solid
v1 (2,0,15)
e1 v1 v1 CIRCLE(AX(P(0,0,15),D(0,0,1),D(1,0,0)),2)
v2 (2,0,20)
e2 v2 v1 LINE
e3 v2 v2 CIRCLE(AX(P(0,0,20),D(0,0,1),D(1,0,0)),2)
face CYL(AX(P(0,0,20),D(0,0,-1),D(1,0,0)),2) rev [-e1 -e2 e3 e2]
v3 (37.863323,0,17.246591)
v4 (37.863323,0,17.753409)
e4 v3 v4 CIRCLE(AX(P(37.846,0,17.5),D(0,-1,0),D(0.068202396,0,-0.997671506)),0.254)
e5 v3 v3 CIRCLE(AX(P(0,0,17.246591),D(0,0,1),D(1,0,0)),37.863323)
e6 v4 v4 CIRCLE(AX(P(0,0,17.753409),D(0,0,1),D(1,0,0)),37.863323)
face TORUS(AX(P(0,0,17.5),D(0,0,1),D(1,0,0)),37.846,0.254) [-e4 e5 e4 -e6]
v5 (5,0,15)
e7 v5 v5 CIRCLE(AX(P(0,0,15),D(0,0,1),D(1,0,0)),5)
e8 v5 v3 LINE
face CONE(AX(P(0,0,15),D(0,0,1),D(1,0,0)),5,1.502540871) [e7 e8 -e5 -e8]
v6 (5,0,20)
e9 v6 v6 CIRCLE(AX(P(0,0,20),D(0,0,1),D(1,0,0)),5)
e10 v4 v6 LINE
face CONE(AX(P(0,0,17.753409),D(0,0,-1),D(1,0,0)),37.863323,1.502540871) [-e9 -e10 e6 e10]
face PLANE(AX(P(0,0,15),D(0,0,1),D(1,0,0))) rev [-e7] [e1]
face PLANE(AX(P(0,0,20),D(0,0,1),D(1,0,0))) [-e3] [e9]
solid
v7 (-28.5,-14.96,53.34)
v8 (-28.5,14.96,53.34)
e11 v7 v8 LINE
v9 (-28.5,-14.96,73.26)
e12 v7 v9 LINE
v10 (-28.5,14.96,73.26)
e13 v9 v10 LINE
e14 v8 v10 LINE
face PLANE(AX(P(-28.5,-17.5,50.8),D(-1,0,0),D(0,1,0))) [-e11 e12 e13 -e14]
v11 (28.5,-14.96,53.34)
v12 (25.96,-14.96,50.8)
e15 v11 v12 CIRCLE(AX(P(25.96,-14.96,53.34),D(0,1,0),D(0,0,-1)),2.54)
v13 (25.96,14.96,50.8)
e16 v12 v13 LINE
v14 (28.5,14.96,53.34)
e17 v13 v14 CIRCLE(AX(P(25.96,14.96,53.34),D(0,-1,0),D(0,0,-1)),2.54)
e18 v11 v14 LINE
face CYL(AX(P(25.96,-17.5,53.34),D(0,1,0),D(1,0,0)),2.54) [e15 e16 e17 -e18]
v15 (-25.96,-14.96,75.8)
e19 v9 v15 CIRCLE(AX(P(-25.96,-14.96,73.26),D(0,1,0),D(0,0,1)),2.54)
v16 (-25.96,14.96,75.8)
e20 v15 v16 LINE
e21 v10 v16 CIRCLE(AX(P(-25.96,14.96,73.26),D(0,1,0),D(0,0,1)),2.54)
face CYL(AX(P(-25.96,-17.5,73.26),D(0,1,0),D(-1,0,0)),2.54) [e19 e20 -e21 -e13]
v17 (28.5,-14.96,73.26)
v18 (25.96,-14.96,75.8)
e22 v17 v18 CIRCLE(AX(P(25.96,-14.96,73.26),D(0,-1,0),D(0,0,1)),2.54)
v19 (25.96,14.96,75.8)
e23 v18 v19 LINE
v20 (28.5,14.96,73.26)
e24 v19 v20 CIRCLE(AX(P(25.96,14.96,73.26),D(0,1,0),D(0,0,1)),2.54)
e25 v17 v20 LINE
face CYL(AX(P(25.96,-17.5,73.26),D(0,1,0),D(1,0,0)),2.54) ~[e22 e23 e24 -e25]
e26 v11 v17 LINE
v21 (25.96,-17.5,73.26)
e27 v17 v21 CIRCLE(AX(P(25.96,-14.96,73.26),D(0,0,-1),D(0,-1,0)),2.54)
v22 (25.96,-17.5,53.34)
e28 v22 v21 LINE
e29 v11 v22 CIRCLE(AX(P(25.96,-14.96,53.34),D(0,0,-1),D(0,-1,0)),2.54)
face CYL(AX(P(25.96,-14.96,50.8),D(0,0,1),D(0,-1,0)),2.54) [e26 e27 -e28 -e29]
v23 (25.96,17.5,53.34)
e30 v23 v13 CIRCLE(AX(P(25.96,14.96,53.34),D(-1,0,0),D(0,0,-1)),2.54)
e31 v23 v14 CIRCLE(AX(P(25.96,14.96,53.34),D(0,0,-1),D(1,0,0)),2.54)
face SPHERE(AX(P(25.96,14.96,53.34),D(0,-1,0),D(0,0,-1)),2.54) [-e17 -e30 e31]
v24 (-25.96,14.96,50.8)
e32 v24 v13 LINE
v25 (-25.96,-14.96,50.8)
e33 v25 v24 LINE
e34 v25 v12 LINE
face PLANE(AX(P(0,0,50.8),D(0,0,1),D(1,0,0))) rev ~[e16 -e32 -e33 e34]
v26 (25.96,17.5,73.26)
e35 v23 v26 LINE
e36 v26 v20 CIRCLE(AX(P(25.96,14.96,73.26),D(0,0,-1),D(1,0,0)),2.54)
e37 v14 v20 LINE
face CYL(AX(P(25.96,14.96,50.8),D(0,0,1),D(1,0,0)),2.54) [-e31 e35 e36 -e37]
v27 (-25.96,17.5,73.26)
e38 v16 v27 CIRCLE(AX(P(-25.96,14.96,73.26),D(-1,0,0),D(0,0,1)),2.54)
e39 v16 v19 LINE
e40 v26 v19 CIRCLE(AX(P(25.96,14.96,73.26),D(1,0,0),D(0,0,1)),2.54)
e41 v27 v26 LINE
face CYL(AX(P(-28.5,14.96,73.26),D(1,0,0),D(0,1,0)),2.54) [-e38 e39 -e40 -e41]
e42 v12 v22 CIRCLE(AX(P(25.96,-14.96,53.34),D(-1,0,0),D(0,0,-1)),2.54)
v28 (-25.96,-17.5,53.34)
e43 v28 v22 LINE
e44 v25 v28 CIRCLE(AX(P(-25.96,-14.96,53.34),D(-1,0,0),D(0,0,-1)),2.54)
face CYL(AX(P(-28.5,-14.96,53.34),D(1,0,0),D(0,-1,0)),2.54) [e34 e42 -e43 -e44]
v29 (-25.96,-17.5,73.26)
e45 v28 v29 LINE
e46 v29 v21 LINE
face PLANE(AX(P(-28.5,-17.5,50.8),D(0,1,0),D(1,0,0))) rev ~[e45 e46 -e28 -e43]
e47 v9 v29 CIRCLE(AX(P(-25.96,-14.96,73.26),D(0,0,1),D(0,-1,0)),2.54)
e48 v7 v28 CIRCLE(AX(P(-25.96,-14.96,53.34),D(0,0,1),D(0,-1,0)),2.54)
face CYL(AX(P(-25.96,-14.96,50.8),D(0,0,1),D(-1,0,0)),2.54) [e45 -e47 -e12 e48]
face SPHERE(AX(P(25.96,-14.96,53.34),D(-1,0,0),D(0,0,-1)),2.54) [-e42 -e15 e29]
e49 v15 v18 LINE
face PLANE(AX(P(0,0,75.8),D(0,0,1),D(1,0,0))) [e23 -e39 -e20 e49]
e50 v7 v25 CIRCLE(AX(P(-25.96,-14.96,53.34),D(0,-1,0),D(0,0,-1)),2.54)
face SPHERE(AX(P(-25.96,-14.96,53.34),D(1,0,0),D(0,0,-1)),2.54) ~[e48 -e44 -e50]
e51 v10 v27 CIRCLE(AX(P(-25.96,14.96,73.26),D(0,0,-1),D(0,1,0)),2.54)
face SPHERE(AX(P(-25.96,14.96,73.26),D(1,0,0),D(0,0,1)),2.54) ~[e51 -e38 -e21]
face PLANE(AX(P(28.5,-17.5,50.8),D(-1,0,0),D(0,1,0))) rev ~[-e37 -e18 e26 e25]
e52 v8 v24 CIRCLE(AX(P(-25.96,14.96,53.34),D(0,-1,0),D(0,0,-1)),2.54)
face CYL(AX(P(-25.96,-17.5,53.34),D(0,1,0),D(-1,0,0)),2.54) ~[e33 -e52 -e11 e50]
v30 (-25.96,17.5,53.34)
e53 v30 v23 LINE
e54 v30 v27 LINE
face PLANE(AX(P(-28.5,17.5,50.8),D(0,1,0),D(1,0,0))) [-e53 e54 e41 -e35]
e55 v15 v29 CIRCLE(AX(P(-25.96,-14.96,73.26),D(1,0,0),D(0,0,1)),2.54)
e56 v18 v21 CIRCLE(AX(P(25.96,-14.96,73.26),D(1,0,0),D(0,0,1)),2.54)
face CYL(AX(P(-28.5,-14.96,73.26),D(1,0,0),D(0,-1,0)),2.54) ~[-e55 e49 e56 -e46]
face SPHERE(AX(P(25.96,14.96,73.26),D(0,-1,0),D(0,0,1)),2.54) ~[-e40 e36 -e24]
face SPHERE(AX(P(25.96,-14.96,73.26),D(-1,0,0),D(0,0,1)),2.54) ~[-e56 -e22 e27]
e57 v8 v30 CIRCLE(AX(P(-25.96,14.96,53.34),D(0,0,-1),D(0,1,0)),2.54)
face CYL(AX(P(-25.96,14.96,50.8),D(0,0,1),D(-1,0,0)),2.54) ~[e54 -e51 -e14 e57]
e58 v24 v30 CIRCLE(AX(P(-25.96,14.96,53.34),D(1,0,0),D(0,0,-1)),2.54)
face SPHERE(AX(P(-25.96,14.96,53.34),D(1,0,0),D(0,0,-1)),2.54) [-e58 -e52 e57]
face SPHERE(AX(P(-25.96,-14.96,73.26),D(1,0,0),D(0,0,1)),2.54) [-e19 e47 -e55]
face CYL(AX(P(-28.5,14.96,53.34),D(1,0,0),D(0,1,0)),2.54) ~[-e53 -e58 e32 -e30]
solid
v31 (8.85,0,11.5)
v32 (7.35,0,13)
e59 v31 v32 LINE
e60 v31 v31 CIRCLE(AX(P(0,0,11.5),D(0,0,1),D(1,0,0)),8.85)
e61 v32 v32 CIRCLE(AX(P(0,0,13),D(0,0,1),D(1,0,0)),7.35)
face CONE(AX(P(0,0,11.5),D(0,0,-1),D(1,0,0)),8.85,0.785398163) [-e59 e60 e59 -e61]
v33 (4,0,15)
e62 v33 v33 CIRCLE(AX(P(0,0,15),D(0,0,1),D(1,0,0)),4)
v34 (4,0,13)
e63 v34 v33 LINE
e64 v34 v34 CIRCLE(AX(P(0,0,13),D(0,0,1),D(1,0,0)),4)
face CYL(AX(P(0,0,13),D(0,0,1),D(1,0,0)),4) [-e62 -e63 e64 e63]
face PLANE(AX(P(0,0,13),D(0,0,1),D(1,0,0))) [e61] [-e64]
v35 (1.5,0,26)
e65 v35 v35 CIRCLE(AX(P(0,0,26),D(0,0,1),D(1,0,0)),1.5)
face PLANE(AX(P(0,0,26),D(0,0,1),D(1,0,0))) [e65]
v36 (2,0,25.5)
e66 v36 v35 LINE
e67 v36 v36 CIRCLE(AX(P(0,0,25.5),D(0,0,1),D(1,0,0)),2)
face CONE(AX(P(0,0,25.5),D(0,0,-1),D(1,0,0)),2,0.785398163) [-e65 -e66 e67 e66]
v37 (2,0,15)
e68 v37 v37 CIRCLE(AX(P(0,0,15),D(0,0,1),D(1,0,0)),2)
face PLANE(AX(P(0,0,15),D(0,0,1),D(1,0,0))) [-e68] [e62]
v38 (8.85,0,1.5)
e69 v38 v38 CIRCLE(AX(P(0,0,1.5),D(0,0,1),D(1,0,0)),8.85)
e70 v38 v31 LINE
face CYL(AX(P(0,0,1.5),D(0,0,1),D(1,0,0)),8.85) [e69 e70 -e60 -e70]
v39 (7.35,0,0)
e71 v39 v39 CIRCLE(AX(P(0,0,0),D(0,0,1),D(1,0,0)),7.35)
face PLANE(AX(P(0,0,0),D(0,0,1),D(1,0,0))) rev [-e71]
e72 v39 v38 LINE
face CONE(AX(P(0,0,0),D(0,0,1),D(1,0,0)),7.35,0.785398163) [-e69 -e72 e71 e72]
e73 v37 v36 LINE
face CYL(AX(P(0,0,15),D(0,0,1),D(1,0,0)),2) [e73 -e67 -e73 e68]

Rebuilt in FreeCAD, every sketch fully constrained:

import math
import FreeCAD as App
import Part
import Sketcher
from FreeCAD import Vector


def edges_at(feature, points):
    """Names of the edges that pass closest to the given points."""
    edges = feature.Shape.Edges
    near = lambda p: min(range(len(edges)), key=lambda i: edges[i].distToShape(Part.Vertex(*p))[0])
    return sorted({f"Edge{near(p) + 1}" for p in points})

doc = App.newDocument("Part")
body = doc.addObject("PartDesign::Body", "Body")

# Sketch on XZ plane
sketch1 = body.newObject("Sketcher::SketchObject", "Sketch")
sketch1.AttachmentSupport = (doc.getObject("XZ_Plane"), [""])
sketch1.MapMode = "FlatFace"
sketch1.addGeometry([
    Part.LineSegment(Vector(0, 26, 0), Vector(0, 0, 0)),  # 0
    Part.LineSegment(Vector(0, 0, 0), Vector(7.3, 0, 0)),  # 1
    Part.LineSegment(Vector(7.3, 0, 0), Vector(8.8, 1.5, 0)),  # 2
    Part.LineSegment(Vector(8.8, 1.5, 0), Vector(8.8, 11.5, 0)),  # 3
    Part.LineSegment(Vector(8.8, 11.5, 0), Vector(7.3, 13, 0)),  # 4
    Part.LineSegment(Vector(7.3, 13, 0), Vector(4, 13, 0)),  # 5
    Part.LineSegment(Vector(4, 13, 0), Vector(4, 15, 0)),  # 6
    Part.LineSegment(Vector(4, 15, 0), Vector(2, 15, 0)),  # 7
    Part.LineSegment(Vector(2, 15, 0), Vector(2, 26, 0)),  # 8
    Part.LineSegment(Vector(2, 26, 0), Vector(0, 26, 0)),  # 9
], False)
sketch1.addConstraint([
    Sketcher.Constraint("Coincident", 0, 2, 1, 1),
    Sketcher.Constraint("Coincident", 1, 2, 2, 1),
    Sketcher.Constraint("Coincident", 2, 2, 3, 1),
    Sketcher.Constraint("Coincident", 3, 2, 4, 1),
    Sketcher.Constraint("Coincident", 4, 2, 5, 1),
    Sketcher.Constraint("Coincident", 5, 2, 6, 1),
    Sketcher.Constraint("Coincident", 6, 2, 7, 1),
    Sketcher.Constraint("Coincident", 7, 2, 8, 1),
    Sketcher.Constraint("Coincident", 8, 2, 9, 1),
    Sketcher.Constraint("Coincident", 9, 2, 0, 1),
    Sketcher.Constraint("Vertical", 0),
    Sketcher.Constraint("Horizontal", 1),
    Sketcher.Constraint("Vertical", 3),
    Sketcher.Constraint("Horizontal", 5),
    Sketcher.Constraint("Vertical", 6),
    Sketcher.Constraint("Horizontal", 7),
    Sketcher.Constraint("Vertical", 8),
    Sketcher.Constraint("Horizontal", 9),
    Sketcher.Constraint("Coincident", 0, 2, -1, 1),
    Sketcher.Constraint("Perpendicular", 2, 4),
    Sketcher.Constraint("Vertical", 1, 2, 4, 2),
    Sketcher.Constraint("Equal", 7, 9),
    Sketcher.Constraint("Equal", 9, 6),
    Sketcher.Constraint("Equal", 2, 4),
    Sketcher.Constraint("DistanceX", 7, 2, 7, 1, 2.0),
    Sketcher.Constraint("DistanceY", 0, 2, 0, 1, 26.0),
    Sketcher.Constraint("DistanceY", 3, 1, 3, 2, 10.0),
    Sketcher.Constraint("DistanceY", 8, 1, 8, 2, 11.0),
    Sketcher.Constraint("DistanceX", 1, 1, 1, 2, 7.35),
])
revolution = body.newObject("PartDesign::Revolution", "Revolution")
revolution.Profile = sketch1
revolution.ReferenceAxis = (sketch1, ["V_Axis"])
revolution.Angle = 360
doc.recompute()

chamfer = body.newObject("PartDesign::Chamfer", "Chamfer")
chamfer.Base = (revolution, edges_at(revolution, [(-2, 0, 26)]))
chamfer.Size = 0.5
body2 = doc.addObject("PartDesign::Body", "Body001")

# Sketch on XZ plane
sketch2 = body2.newObject("Sketcher::SketchObject", "Sketch001")
sketch2.AttachmentSupport = (doc.getObject("XZ_Plane001"), [""])
sketch2.MapMode = "FlatFace"
sketch2.addGeometry([
    Part.LineSegment(Vector(5, 20, 0), Vector(2, 20, 0)),  # 0
    Part.LineSegment(Vector(2, 20, 0), Vector(2, 15, 0)),  # 1
    Part.LineSegment(Vector(2, 15, 0), Vector(5, 15, 0)),  # 2
    Part.LineSegment(Vector(5, 15, 0), Vector(37.86, 17.25, 0)),  # 3
    Part.ArcOfCircle(Part.Circle(Vector(37.85, 17.5, 0), Vector(0, 0, 1), 0.25), math.radians(-86), math.radians(86)),  # 4
    Part.LineSegment(Vector(37.86, 17.75, 0), Vector(5, 20, 0)),  # 5
], False)
sketch2.addConstraint([
    Sketcher.Constraint("Coincident", 0, 2, 1, 1),
    Sketcher.Constraint("Coincident", 1, 2, 2, 1),
    Sketcher.Constraint("Coincident", 2, 2, 3, 1),
    Sketcher.Constraint("Tangent", 3, 2, 4, 1),
    Sketcher.Constraint("Tangent", 4, 2, 5, 1),
    Sketcher.Constraint("Coincident", 5, 2, 0, 1),
    Sketcher.Constraint("Horizontal", 0),
    Sketcher.Constraint("Vertical", 1),
    Sketcher.Constraint("Horizontal", 2),
    Sketcher.Constraint("Vertical", 3, 2, 4, 2),
    Sketcher.Constraint("Vertical", 2, 2, 5, 2),
    Sketcher.Constraint("DistanceX", 0, 2, 0, 1, 3.0),
    Sketcher.Constraint("DistanceY", 1, 2, 1, 1, 5.0),
    Sketcher.Constraint("DistanceX", -1, 1, 0, 2, 2.0),
    Sketcher.Constraint("DistanceY", -1, 1, 0, 2, 20.0),
    Sketcher.Constraint("Radius", 4, 0.254),
    Sketcher.Constraint("DistanceX", -1, 1, 4, 3, 37.846),
])
revolution2 = body2.newObject("PartDesign::Revolution", "Revolution001")
revolution2.Profile = sketch2
revolution2.ReferenceAxis = (sketch2, ["V_Axis"])
revolution2.Angle = 360
body3 = doc.addObject("PartDesign::Body", "Body002")

# Sketch on XY plane
sketch3 = body3.newObject("Sketcher::SketchObject", "Sketch002")
sketch3.AttachmentSupport = (doc.getObject("XY_Plane002"), [""])
sketch3.MapMode = "FlatFace"
sketch3.AttachmentOffset = App.Placement(Vector(0, 0, 50.8), App.Rotation())
sketch3.addGeometry([
    Part.LineSegment(Vector(-28, 18, 0), Vector(-28, -18, 0)),
    Part.LineSegment(Vector(-28, -18, 0), Vector(28, -18, 0)),
    Part.LineSegment(Vector(28, -18, 0), Vector(28, 18, 0)),
    Part.LineSegment(Vector(28, 18, 0), Vector(-28, 18, 0)),
], False)
sketch3.addConstraint([
    Sketcher.Constraint("Coincident", 0, 2, 1, 1),
    Sketcher.Constraint("Coincident", 1, 2, 2, 1),
    Sketcher.Constraint("Coincident", 2, 2, 3, 1),
    Sketcher.Constraint("Coincident", 3, 2, 0, 1),
    Sketcher.Constraint("Vertical", 0),
    Sketcher.Constraint("Horizontal", 1),
    Sketcher.Constraint("Vertical", 2),
    Sketcher.Constraint("Horizontal", 3),
    Sketcher.Constraint("Symmetric", 0, 2, 2, 2, -1, 1),
    Sketcher.Constraint("DistanceX", 1, 1, 1, 2, 57.0),
    Sketcher.Constraint("DistanceY", 0, 2, 0, 1, 35.0),
])
pad1 = body3.newObject("PartDesign::Pad", "Pad")
pad1.Profile = sketch3
pad1.Length = 25
doc.recompute()

fillet = body3.newObject("PartDesign::Fillet", "Fillet")
fillet.Base = (pad1, ["Edge1"])
fillet.UseAllEdges = True
fillet.Radius = 2.54

doc.recompute()
